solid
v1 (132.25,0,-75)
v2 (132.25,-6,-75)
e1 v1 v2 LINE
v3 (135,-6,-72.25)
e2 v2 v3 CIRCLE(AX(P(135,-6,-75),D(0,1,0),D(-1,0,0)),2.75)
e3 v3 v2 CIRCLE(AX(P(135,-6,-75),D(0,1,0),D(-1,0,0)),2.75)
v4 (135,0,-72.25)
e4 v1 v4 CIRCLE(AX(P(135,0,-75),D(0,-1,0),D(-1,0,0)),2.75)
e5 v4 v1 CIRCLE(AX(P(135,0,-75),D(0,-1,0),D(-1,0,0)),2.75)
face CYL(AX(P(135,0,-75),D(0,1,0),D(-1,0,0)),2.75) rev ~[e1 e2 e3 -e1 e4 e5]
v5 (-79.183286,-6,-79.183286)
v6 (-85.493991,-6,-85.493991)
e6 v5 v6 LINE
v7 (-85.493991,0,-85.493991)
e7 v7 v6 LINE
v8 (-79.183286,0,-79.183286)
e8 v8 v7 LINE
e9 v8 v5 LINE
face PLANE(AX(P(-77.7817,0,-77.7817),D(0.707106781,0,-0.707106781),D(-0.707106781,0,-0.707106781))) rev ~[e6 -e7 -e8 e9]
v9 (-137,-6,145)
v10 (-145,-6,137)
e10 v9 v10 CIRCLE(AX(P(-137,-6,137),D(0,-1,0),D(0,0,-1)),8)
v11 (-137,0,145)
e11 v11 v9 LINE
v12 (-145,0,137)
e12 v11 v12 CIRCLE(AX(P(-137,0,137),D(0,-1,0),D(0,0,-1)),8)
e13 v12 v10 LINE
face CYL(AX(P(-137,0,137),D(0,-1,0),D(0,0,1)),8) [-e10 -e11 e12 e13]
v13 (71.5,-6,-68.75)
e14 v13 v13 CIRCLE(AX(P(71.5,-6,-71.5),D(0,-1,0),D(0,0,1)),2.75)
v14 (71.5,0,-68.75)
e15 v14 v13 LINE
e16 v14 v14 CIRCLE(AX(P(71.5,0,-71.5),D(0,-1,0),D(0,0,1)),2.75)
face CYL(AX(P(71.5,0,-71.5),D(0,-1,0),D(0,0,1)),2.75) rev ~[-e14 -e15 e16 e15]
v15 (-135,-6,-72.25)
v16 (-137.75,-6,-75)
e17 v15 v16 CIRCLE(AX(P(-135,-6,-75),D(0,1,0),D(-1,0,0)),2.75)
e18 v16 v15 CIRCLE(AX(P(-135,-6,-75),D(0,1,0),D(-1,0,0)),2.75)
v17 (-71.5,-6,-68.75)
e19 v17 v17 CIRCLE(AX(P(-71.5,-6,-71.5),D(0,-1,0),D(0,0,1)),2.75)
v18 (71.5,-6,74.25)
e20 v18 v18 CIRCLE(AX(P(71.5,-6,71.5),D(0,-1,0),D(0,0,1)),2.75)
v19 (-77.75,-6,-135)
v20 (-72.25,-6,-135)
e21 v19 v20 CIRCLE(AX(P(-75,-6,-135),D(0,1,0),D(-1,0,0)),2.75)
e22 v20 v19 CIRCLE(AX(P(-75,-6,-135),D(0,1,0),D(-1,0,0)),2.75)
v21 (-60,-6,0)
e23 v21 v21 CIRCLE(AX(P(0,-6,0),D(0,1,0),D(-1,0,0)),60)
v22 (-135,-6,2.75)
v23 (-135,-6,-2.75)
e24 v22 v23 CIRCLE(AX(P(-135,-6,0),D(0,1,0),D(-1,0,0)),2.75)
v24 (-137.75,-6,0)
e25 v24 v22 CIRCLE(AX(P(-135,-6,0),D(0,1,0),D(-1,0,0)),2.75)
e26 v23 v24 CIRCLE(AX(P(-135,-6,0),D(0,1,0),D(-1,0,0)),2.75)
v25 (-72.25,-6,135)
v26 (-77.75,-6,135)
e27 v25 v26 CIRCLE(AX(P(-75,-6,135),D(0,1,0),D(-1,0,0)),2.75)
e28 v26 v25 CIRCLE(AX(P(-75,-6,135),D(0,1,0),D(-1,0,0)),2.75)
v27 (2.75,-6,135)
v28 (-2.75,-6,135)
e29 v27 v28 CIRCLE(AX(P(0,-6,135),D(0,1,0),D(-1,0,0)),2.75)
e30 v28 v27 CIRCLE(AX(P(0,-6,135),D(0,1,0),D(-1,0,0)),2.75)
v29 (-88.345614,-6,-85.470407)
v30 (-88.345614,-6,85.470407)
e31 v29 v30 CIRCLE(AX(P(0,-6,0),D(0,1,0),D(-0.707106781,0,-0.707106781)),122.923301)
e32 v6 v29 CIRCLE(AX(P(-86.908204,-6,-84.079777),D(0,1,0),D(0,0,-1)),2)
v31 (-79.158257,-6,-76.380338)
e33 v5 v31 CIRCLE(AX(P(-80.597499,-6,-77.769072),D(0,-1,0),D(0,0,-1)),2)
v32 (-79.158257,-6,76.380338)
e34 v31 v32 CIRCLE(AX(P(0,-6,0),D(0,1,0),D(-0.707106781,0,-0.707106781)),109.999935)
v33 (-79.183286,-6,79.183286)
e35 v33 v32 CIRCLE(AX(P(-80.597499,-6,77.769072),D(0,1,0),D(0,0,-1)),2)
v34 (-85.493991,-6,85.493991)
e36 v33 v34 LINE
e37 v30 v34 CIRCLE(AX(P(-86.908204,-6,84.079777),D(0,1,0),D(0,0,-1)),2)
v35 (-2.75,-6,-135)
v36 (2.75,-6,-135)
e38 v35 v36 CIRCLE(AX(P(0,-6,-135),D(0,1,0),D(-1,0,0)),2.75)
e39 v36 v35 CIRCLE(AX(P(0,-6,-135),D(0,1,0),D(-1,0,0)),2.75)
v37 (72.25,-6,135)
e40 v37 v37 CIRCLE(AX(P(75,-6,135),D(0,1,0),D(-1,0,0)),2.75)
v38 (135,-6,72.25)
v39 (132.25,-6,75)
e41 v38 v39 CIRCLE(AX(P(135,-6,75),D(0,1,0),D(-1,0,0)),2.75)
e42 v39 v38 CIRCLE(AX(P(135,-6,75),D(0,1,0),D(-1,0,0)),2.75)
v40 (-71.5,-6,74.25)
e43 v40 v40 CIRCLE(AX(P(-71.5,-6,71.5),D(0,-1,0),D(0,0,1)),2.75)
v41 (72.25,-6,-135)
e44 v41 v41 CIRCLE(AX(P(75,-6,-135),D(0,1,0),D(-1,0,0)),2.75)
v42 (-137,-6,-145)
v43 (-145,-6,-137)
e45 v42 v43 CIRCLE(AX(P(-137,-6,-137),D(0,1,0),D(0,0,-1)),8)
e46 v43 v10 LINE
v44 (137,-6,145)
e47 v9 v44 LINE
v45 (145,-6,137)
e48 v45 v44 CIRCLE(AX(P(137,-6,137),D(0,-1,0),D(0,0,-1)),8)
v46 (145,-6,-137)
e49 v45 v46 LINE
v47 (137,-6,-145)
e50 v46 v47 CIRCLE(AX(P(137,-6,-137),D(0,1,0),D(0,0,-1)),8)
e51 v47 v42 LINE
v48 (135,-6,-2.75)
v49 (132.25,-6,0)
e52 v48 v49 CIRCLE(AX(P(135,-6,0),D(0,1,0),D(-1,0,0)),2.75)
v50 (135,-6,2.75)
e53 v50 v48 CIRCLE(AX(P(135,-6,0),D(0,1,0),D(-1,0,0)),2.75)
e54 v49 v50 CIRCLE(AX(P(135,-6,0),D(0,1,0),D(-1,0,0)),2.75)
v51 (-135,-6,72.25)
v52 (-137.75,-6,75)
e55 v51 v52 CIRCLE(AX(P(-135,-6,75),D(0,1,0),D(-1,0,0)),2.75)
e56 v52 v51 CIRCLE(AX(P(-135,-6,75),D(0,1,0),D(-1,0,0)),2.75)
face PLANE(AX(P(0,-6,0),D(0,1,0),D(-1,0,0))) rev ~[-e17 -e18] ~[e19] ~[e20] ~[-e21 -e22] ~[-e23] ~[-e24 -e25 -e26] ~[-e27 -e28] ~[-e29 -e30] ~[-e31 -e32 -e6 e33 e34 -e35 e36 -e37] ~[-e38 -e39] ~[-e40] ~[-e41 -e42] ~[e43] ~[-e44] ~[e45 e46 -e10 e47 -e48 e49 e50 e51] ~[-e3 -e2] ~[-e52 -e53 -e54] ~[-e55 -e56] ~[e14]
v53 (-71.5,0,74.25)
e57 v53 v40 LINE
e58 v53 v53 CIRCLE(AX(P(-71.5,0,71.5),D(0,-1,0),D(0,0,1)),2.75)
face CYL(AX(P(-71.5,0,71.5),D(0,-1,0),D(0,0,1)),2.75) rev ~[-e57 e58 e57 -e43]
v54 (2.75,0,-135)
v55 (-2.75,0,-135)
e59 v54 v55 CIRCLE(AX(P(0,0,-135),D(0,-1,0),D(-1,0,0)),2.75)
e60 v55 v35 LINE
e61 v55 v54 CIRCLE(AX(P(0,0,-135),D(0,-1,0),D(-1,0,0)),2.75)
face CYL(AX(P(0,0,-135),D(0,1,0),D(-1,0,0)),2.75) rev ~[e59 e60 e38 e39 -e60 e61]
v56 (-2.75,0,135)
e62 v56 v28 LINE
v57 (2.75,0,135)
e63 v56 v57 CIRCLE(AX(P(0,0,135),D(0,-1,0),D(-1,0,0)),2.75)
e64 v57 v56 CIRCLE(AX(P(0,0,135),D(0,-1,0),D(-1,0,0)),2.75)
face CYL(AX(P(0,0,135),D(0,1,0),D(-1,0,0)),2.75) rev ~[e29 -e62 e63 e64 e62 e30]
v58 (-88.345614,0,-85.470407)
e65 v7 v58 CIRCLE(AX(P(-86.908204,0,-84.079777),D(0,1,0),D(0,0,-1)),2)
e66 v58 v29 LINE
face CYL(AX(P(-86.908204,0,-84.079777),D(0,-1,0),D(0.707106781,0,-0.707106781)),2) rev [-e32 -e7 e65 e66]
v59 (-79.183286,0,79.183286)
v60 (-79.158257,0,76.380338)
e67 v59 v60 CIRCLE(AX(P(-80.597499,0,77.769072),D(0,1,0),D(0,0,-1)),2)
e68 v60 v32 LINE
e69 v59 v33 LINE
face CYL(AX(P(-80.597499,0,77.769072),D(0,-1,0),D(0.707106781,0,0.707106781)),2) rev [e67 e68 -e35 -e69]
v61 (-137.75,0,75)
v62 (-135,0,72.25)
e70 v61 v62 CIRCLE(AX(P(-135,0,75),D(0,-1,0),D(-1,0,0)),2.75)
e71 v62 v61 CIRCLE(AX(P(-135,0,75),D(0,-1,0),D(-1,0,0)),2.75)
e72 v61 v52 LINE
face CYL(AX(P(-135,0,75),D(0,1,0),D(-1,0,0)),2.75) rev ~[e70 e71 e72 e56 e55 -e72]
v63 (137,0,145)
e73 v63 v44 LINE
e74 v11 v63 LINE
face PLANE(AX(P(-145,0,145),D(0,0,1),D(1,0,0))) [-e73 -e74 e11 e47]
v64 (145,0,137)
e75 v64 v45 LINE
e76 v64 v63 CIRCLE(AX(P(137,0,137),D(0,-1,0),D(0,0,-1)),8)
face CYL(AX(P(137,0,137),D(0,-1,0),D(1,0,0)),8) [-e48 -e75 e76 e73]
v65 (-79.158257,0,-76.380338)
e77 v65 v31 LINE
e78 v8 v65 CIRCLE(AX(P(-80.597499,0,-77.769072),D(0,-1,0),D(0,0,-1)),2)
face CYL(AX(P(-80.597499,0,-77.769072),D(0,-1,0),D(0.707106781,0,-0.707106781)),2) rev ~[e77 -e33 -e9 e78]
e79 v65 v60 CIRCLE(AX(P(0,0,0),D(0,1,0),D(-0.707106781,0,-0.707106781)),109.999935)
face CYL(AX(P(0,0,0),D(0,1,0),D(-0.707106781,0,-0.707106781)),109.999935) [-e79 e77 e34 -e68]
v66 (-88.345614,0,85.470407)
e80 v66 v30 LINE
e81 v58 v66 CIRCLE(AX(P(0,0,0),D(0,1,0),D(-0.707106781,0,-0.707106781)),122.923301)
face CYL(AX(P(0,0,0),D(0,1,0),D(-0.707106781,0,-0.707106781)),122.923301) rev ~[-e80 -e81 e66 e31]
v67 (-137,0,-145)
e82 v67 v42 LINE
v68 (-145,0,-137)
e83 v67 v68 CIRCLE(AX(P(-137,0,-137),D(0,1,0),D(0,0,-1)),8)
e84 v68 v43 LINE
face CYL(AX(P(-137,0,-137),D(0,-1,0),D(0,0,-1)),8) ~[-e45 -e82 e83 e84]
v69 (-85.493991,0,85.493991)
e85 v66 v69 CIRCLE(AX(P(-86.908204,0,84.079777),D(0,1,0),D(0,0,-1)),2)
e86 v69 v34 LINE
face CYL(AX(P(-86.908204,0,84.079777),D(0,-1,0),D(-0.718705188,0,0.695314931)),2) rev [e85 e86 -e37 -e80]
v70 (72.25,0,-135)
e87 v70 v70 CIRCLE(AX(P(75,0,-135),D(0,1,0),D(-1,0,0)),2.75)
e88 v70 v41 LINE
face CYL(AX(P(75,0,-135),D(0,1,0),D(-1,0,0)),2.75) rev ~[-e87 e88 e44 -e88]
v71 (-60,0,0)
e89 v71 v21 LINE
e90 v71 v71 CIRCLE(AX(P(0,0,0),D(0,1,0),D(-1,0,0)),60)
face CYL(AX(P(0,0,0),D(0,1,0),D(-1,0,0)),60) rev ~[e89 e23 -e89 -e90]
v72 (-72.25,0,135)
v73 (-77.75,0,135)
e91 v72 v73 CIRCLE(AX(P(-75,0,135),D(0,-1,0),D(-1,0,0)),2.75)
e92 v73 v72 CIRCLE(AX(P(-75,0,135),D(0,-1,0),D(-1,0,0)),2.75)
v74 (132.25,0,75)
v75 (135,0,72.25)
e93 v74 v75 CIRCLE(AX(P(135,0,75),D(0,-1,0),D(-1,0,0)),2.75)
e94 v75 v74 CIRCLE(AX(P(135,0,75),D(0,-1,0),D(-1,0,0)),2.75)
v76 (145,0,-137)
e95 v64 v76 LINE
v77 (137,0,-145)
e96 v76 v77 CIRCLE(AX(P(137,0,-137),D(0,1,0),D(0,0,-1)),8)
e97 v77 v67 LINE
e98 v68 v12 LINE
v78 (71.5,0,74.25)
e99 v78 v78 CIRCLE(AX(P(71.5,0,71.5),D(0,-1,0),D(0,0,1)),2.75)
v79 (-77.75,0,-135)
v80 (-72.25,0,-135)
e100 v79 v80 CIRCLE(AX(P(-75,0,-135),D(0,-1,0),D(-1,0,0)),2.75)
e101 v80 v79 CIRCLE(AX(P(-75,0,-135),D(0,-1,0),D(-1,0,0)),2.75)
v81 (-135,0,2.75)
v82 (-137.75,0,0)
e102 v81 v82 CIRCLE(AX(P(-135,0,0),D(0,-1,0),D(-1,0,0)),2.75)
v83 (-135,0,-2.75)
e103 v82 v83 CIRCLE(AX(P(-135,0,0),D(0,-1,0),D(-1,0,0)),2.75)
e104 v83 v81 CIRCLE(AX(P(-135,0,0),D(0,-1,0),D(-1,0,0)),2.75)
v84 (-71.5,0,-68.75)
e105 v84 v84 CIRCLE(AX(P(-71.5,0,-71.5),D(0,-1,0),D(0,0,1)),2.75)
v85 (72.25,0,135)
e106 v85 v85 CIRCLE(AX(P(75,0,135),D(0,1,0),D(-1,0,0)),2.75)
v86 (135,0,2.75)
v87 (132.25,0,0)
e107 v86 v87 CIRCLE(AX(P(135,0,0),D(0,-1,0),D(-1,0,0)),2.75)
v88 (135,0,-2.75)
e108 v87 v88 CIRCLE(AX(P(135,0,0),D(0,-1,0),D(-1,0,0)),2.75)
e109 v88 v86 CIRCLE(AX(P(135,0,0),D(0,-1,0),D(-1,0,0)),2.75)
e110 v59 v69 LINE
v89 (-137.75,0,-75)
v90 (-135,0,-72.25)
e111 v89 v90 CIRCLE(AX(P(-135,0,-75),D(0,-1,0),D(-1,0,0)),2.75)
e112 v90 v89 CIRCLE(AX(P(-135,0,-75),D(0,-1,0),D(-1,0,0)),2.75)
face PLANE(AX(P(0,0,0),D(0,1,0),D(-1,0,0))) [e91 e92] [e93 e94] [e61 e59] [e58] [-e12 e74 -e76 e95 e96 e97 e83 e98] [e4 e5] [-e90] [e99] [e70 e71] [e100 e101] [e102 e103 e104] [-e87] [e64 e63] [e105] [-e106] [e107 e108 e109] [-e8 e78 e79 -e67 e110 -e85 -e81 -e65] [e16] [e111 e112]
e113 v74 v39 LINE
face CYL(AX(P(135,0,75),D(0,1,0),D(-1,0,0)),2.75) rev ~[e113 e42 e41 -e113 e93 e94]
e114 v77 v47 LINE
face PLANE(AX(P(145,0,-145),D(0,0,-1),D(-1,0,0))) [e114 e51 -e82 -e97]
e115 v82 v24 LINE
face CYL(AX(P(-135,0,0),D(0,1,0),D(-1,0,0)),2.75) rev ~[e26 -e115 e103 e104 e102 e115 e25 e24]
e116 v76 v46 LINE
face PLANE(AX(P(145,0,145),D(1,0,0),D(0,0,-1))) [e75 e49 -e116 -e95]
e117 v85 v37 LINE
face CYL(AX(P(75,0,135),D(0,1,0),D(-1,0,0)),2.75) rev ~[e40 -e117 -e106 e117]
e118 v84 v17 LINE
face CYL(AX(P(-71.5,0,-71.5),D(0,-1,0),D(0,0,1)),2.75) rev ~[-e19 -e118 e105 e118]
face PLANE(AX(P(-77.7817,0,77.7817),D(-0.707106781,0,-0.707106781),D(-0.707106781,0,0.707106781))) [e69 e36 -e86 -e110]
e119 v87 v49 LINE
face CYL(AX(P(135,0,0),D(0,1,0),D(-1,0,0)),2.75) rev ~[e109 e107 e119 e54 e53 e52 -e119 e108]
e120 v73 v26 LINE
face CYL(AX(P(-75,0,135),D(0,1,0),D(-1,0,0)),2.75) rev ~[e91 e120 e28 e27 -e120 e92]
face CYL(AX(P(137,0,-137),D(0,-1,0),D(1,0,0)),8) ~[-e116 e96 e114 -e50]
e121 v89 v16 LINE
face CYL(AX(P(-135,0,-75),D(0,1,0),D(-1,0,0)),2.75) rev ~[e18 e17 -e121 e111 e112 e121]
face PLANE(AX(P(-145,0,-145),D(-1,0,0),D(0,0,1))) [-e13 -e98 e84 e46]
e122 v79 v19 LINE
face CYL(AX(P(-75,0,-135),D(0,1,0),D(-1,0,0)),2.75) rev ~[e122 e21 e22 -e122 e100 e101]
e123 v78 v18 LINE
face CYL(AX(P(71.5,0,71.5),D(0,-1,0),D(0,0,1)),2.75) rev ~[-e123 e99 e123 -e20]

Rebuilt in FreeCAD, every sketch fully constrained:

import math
import FreeCAD as App
import Part
import Sketcher
Q = App.Units.Quantity


def edges_at(feature, points):
    """Names of the edges that pass closest to the given points."""
    edges = feature.Shape.Edges
    near = lambda p: min(range(len(edges)), key=lambda i: edges[i].distToShape(Part.Vertex(*p))[0])
    return sorted({f"Edge{near(p) + 1}" for p in points})


def add_polygon(sketch, points):
    """Adds a closed chain of lines whose ends are joined by coincident constraints."""
    first, n = sketch.GeometryCount, len(points)
    for a, b in zip(points, points[1:] + points[:1]):
        sketch.addGeometry(Part.LineSegment(App.Vector(*a, 0), App.Vector(*b, 0)), False)
    for i in range(n):
        sketch.addConstraint(Sketcher.Constraint("Coincident", first + i, 2, first + (i + 1) % n, 1))

doc = App.newDocument("Part")
body = doc.addObject("PartDesign::Body", "Body")

sketch1 = body.newObject("Sketcher::SketchObject", "Sketch")
sketch1.AttachmentSupport = (doc.getObject("XZ_Plane"), [""])
sketch1.MapMode = "FlatFace"
add_polygon(sketch1, [(145, 145), (145, -145), (-145, -145), (-145, 145)])
sketch1.addGeometry(Part.Circle(App.Vector(0, 0, 0), App.Vector(0, 0, 1), 60), False)
sketch1.addConstraint(Sketcher.Constraint("Vertical", 0))
sketch1.addConstraint(Sketcher.Constraint("Horizontal", 1))
sketch1.addConstraint(Sketcher.Constraint("Vertical", 2))
sketch1.addConstraint(Sketcher.Constraint("Horizontal", 3))
sketch1.addConstraint(Sketcher.Constraint("Coincident", 4, 3, -1, 1))
sketch1.addConstraint(Sketcher.Constraint("Symmetric", 0, 2, 2, 2, -1, 1))
sketch1.addConstraint(Sketcher.Constraint("Equal", 3, 0))
sketch1.addConstraint(Sketcher.Constraint("Diameter", 4, Q("120 mm")))
sketch1.addConstraint(Sketcher.Constraint("DistanceX", 1, 2, 1, 1, Q("290 mm")))
pad1 = body.newObject("PartDesign::Pad", "Pad")
pad1.Profile = sketch1
pad1.Length = 6
doc.recompute()

fillet = body.newObject("PartDesign::Fillet", "Fillet")
fillet.Base = (pad1, edges_at(pad1, [
    (-145, -3, -145),
    (-145, -3, 145),
    (145, -3, 145),
    (145, -3, -145),
]))
fillet.Radius = 8

sketch2 = body.newObject("Sketcher::SketchObject", "Sketch001")
sketch2.AttachmentSupport = (doc.getObject("XZ_Plane"), [""])
sketch2.MapMode = "FlatFace"
sketch2.addGeometry(Part.Circle(App.Vector(0, -135, 0), App.Vector(0, 0, 1), 2.8), False)
sketch2.addGeometry(Part.Circle(App.Vector(75, -135, 0), App.Vector(0, 0, 1), 2.8), False)
sketch2.addGeometry(Part.Circle(App.Vector(-75, -135, 0), App.Vector(0, 0, 1), 2.8), False)
sketch2.addGeometry(Part.Circle(App.Vector(0, 135, 0), App.Vector(0, 0, 1), 2.8), False)
sketch2.addGeometry(Part.Circle(App.Vector(-75, 135, 0), App.Vector(0, 0, 1), 2.8), False)
sketch2.addGeometry(Part.Circle(App.Vector(75, 135, 0), App.Vector(0, 0, 1), 2.8), False)
sketch2.addGeometry(Part.Circle(App.Vector(-135, 0, 0), App.Vector(0, 0, 1), 2.8), False)
sketch2.addGeometry(Part.Circle(App.Vector(-135, -75, 0), App.Vector(0, 0, 1), 2.8), False)
sketch2.addGeometry(Part.Circle(App.Vector(-135, 75, 0), App.Vector(0, 0, 1), 2.8), False)
sketch2.addGeometry(Part.Circle(App.Vector(135, 0, 0), App.Vector(0, 0, 1), 2.8), False)
sketch2.addGeometry(Part.Circle(App.Vector(135, -75, 0), App.Vector(0, 0, 1), 2.8), False)
sketch2.addGeometry(Part.Circle(App.Vector(135, 75, 0), App.Vector(0, 0, 1), 2.8), False)
sketch2.addConstraint(Sketcher.Constraint("Equal", 0, 1))
sketch2.addConstraint(Sketcher.Constraint("Equal", 1, 2))
sketch2.addConstraint(Sketcher.Constraint("Equal", 2, 3))
sketch2.addConstraint(Sketcher.Constraint("Equal", 3, 4))
sketch2.addConstraint(Sketcher.Constraint("Equal", 4, 5))
sketch2.addConstraint(Sketcher.Constraint("Equal", 5, 6))
sketch2.addConstraint(Sketcher.Constraint("Equal", 6, 7))
sketch2.addConstraint(Sketcher.Constraint("Equal", 7, 8))
sketch2.addConstraint(Sketcher.Constraint("Equal", 8, 9))
sketch2.addConstraint(Sketcher.Constraint("Equal", 9, 10))
sketch2.addConstraint(Sketcher.Constraint("Equal", 10, 11))
sketch2.addConstraint(Sketcher.Constraint("Symmetric", 0, 3, 3, 3, -1, 1))
sketch2.addConstraint(Sketcher.Constraint("Symmetric", 1, 3, 4, 3, -1, 1))
sketch2.addConstraint(Sketcher.Constraint("Symmetric", 2, 3, 5, 3, -1, 1))
sketch2.addConstraint(Sketcher.Constraint("Symmetric", 6, 3, 9, 3, -1, 1))
sketch2.addConstraint(Sketcher.Constraint("Symmetric", 8, 3, 10, 3, -1, 1))
sketch2.addConstraint(Sketcher.Constraint("Symmetric", 7, 3, 11, 3, -1, 1))
sketch2.addConstraint(Sketcher.Constraint("Symmetric", 1, 3, 2, 3, -2))
sketch2.addConstraint(Sketcher.Constraint("Symmetric", 7, 3, 10, 3, -2))
sketch2.addConstraint(Sketcher.Constraint("PointOnObject", 0, 3, -2))
sketch2.addConstraint(Sketcher.Constraint("PointOnObject", 6, 3, -1))
sketch2.addConstraint(Sketcher.Constraint("Horizontal", 0, 3, 1, 3))
sketch2.addConstraint(Sketcher.Constraint("Vertical", 6, 3, 7, 3))
sketch2.addConstraint(Sketcher.Constraint("Diameter", 0, Q("5.5 mm")))
sketch2.addConstraint(Sketcher.Constraint("DistanceX", -1, 1, 1, 3, Q("75 mm")))
sketch2.addConstraint(Sketcher.Constraint("DistanceY", 7, 3, -1, 1, Q("75 mm")))
sketch2.addConstraint(Sketcher.Constraint("DistanceY", 0, 3, -1, 1, Q("135 mm")))
sketch2.addConstraint(Sketcher.Constraint("DistanceX", 6, 3, -1, 1, Q("135 mm")))
pocket1 = body.newObject("PartDesign::Pocket", "Pocket")
pocket1.Profile = sketch2
pocket1.Type = "ThroughAll"
pocket1.Reversed = True

sketch3 = body.newObject("Sketcher::SketchObject", "Sketch002")
sketch3.AttachmentSupport = (doc.getObject("XZ_Plane"), [""])
sketch3.MapMode = "FlatFace"
sketch3.addGeometry(Part.Circle(App.Vector(-71.5, 71.5, 0), App.Vector(0, 0, 1), 2.8), False)
sketch3.addGeometry(Part.Circle(App.Vector(-71.5, -71.5, 0), App.Vector(0, 0, 1), 2.8), False)
sketch3.addGeometry(Part.Circle(App.Vector(71.5, -71.5, 0), App.Vector(0, 0, 1), 2.8), False)
sketch3.addGeometry(Part.Circle(App.Vector(71.5, 71.5, 0), App.Vector(0, 0, 1), 2.8), False)
sketch3.addConstraint(Sketcher.Constraint("Equal", 0, 1))
sketch3.addConstraint(Sketcher.Constraint("Equal", 1, 2))
sketch3.addConstraint(Sketcher.Constraint("Equal", 2, 3))
sketch3.addConstraint(Sketcher.Constraint("Symmetric", 0, 3, 2, 3, -1, 1))
sketch3.addConstraint(Sketcher.Constraint("Symmetric", 1, 3, 3, 3, -1, 1))
sketch3.addConstraint(Sketcher.Constraint("Symmetric", 1, 3, 2, 3, -2))
sketch3.addConstraint(Sketcher.Constraint("Diameter", 0, Q("5.5 mm")))
sketch3.addConstraint(Sketcher.Constraint("DistanceY", 1, 3, 0, 3, Q("143 mm")))
sketch3.addConstraint(Sketcher.Constraint("DistanceX", 1, 3, 2, 3, Q("143 mm")))
doc.recompute()
hole = body.newObject("PartDesign::Hole", "Hole")
hole.Profile = sketch3
hole.ThreadType = "None"
hole.Diameter = 5.5
hole.DepthType = "ThroughAll"
hole.Reversed = True

sketch4 = body.newObject("Sketcher::SketchObject", "Sketch003")
sketch4.AttachmentSupport = (doc.getObject("XZ_Plane"), [""])
sketch4.MapMode = "FlatFace"
sketch4.addGeometry(Part.ArcOfCircle(Part.Circle(App.Vector(0, 0, 0), App.Vector(0, 0, 1), 110), math.radians(135), math.radians(225)), False)
sketch4.addGeometry(Part.LineSegment(App.Vector(-78, -78, 0), App.Vector(-87, -87, 0)), False)
sketch4.addGeometry(Part.ArcOfCircle(Part.Circle(App.Vector(0, 0, 0), App.Vector(0, 0, 1), 123), math.radians(135), math.radians(225)), False)
sketch4.addGeometry(Part.LineSegment(App.Vector(-87, 87, 0), App.Vector(-78, 78, 0)), False)
sketch4.addConstraint(Sketcher.Constraint("Coincident", 0, 2, 1, 1))
sketch4.addConstraint(Sketcher.Constraint("Coincident", 1, 2, 2, 2))
sketch4.addConstraint(Sketcher.Constraint("Coincident", 2, 1, 3, 1))
sketch4.addConstraint(Sketcher.Constraint("Coincident", 3, 2, 0, 1))
sketch4.addConstraint(Sketcher.Constraint("Coincident", 0, 3, -1, 1))
sketch4.addConstraint(Sketcher.Constraint("Coincident", 2, 3, -1, 1))
sketch4.addConstraint(Sketcher.Constraint("Perpendicular", 1, 3))
sketch4.addConstraint(Sketcher.Constraint("Vertical", 1, 2, 2, 1))
sketch4.addConstraint(Sketcher.Constraint("Vertical", 0, 2, 3, 2))
sketch4.addConstraint(Sketcher.Constraint("Radius", 0, Q("110 mm")))
sketch4.addConstraint(Sketcher.Constraint("Radius", 2, Q("122.9233 mm")))
sketch4.addConstraint(Sketcher.Constraint("DistanceX", 1, 2, -1, 1, Q("86.92 mm")))
pocket2 = body.newObject("PartDesign::Pocket", "Pocket001")
pocket2.Profile = sketch4
pocket2.Length = 10
pocket2.Reversed = True
doc.recompute()

fillet2 = body.newObject("PartDesign::Fillet", "Fillet001")
fillet2.Base = (pocket2, edges_at(pocket2, [
    (-77.782, -3, -77.782),
    (-86.92, -3, -86.92),
    (-86.92, -3, 86.92),
    (-77.782, -3, 77.782),
]))
fillet2.Radius = 2

doc.recompute()
